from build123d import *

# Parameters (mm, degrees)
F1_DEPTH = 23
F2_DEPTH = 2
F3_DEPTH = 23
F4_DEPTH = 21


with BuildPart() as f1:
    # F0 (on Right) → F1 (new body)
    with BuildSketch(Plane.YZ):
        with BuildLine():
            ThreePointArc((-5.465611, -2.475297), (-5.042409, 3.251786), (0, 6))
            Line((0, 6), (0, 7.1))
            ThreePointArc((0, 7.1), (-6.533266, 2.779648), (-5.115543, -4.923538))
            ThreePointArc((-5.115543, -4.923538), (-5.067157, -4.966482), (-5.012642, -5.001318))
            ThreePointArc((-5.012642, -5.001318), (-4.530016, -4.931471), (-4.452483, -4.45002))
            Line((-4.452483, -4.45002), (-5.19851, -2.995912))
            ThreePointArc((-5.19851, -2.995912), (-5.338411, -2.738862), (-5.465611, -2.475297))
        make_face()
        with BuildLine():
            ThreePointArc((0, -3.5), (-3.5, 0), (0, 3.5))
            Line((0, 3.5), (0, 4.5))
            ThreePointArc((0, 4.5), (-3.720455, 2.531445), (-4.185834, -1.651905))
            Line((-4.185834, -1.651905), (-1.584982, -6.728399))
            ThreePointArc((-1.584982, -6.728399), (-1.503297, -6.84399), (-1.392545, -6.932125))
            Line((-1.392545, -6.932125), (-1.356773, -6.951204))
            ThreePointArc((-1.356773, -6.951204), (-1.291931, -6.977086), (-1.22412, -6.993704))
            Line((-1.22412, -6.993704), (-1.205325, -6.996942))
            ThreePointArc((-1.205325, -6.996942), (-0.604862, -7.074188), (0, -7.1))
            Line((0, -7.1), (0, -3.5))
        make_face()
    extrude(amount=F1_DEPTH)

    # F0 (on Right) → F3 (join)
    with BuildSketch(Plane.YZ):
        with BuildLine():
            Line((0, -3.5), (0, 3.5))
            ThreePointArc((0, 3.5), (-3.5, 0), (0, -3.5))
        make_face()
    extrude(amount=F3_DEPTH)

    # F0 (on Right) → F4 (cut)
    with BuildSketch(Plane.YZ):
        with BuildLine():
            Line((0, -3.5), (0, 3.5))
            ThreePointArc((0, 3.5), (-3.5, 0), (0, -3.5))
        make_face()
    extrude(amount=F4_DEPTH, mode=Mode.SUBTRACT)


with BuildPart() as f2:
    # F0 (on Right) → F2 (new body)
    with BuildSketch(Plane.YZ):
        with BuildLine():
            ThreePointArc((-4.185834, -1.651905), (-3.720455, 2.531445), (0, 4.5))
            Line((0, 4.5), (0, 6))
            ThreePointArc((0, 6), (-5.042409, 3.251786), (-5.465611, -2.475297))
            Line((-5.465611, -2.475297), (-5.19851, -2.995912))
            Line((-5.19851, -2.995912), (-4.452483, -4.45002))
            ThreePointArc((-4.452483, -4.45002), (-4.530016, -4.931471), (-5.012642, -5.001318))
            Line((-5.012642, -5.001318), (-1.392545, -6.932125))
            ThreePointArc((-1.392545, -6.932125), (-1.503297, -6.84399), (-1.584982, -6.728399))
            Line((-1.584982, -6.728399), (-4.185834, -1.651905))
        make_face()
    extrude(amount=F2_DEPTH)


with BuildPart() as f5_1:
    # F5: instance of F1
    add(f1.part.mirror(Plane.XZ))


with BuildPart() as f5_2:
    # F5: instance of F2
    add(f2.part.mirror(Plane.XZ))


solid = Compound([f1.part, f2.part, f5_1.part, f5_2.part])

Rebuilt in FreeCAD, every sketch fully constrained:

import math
import FreeCAD as App
import Part
import Sketcher
from FreeCAD import Vector
Q = App.Units.Quantity

doc = App.newDocument("Part")
body = doc.addObject("PartDesign::Body", "Body")
body.AllowCompound = True

# Sketch on YZ plane
sketch1 = body.newObject("Sketcher::SketchObject", "Sketch")
sketch1.AttachmentSupport = (doc.getObject("YZ_Plane"), [""])
sketch1.MapMode = "FlatFace"
sketch1.addGeometry([
    Part.ArcOfCircle(Part.Circle(Vector(0, 0, 0), Vector(0, 0, 1), 6), math.radians(89.999998), math.radians(204.365094)),  # 0
    Part.LineSegment(Vector(0, 6, 0), Vector(0, 7.1, 0)),  # 1
    Part.ArcOfCircle(Part.Circle(Vector(-0.000001, 0, 0), Vector(0, 0, 1), 7.1), math.radians(89.999995), math.radians(223.904311)),  # 2
    Part.ArcOfCircle(Part.Circle(Vector(-4.818848, -4.637976, 0), Vector(0, 0, 1), 0.411793), math.radians(-136.095357), math.radians(-118.073881)),  # 3
    Part.ArcOfCircle(Part.Circle(Vector(-4.818857, -4.637988, 0), Vector(0, 0, 1), 0.411779), math.radians(-118.07356), math.radians(27.160008)),  # 4
    Part.LineSegment(Vector(-4.452483, -4.45002, 0), Vector(-5.19851, -2.995912, 0)),  # 5
    Part.ArcOfCircle(Part.Circle(Vector(-0.000012, -0.000003, 0), Vector(0, 0, 1), 5.999988), math.radians(-155.634882), math.radians(-150.045027)),  # 6
    Part.ArcOfCircle(Part.Circle(Vector(0, 0, 0), Vector(0, 0, 1), 3.5), math.radians(90), math.radians(270)),  # 7
    Part.LineSegment(Vector(0, 3.5, 0), Vector(0, 4.5, 0)),  # 8
    Part.ArcOfCircle(Part.Circle(Vector(0, 0, 0), Vector(0, 0, 1), 4.5), math.radians(89.999999), math.radians(201.536268)),  # 9
    Part.LineSegment(Vector(-4.185834, -1.651905, 0), Vector(-1.584982, -6.728399, 0)),  # 10
    Part.ArcOfCircle(Part.Circle(Vector(-1.139057, -6.499934, 0), Vector(0, 0, 1), 0.501044), math.radians(-152.872128), math.radians(-120.392372)),  # 11
    Part.LineSegment(Vector(-1.392545, -6.932125, 0), Vector(-1.356773, -6.951204, 0)),  # 12
    Part.ArcOfCircle(Part.Circle(Vector(-1.139052, -6.499913, 0), Vector(0, 0, 1), 0.501065), math.radians(-115.754589), math.radians(-99.774745)),  # 13
    Part.LineSegment(Vector(-1.22412, -6.993704, 0), Vector(-1.205325, -6.996942, 0)),  # 14
    Part.ArcOfCircle(Part.Circle(Vector(0.000012, 0.000173, 0), Vector(0, 0, 1), 7.100173), math.radians(-99.773964), math.radians(-90.0001)),  # 15
    Part.LineSegment(Vector(0, -7.1, 0), Vector(0, -3.5, 0)),  # 16
], False)
sketch1.addConstraint([
    Sketcher.Constraint("Coincident", 0, 1, 1, 1),
    Sketcher.Constraint("Coincident", 1, 2, 2, 1),
    Sketcher.Constraint("Coincident", 2, 2, 3, 1),
    Sketcher.Constraint("Coincident", 3, 2, 4, 1),
    Sketcher.Constraint("Coincident", 4, 2, 5, 1),
    Sketcher.Constraint("Coincident", 5, 2, 6, 2),
    Sketcher.Constraint("Coincident", 6, 1, 0, 2),
    Sketcher.Constraint("Coincident", 7, 1, 8, 1),
    Sketcher.Constraint("Coincident", 8, 2, 9, 1),
    Sketcher.Constraint("Coincident", 9, 2, 10, 1),
    Sketcher.Constraint("Coincident", 10, 2, 11, 1),
    Sketcher.Constraint("Coincident", 11, 2, 12, 1),
    Sketcher.Constraint("Coincident", 12, 2, 13, 1),
    Sketcher.Constraint("Coincident", 13, 2, 14, 1),
    Sketcher.Constraint("Coincident", 14, 2, 15, 1),
    Sketcher.Constraint("Coincident", 15, 2, 16, 1),
    Sketcher.Constraint("Coincident", 16, 2, 7, 2),
    Sketcher.Constraint("Vertical", 1),
    Sketcher.Constraint("Vertical", 8),
    Sketcher.Constraint("Vertical", 16),
    Sketcher.Constraint("Coincident", 0, 3, -1, 1),
    Sketcher.Constraint("Coincident", 2, 3, -1, 1),
    Sketcher.Constraint("Coincident", 7, 3, -1, 1),
    Sketcher.Constraint("Coincident", 9, 3, -1, 1),
    Sketcher.Constraint("PointOnObject", 0, 1, -2),
    Sketcher.Constraint("PointOnObject", 7, 1, -2),
    Sketcher.Constraint("PointOnObject", 15, 2, -2),
    Sketcher.Constraint("Radius", 0, Q("6 mm")),
    Sketcher.Constraint("Radius", 2, Q("7.1 mm")),
    Sketcher.Constraint("Radius", 7, Q("3.5 mm")),
    Sketcher.Constraint("Radius", 9, Q("4.5 mm")),
    Sketcher.Constraint("DistanceY", 16, 1, 16, 2, Q("3.6 mm")),
    Sketcher.Constraint("Radius", 4, Q("0.411779 mm")),
    Sketcher.Constraint("Radius", 3, Q("0.411793 mm")),
    Sketcher.Constraint("Radius", 6, Q("5.999988 mm")),
    Sketcher.Constraint("Radius", 11, Q("0.501044 mm")),
    Sketcher.Constraint("Radius", 13, Q("0.501065 mm")),
    Sketcher.Constraint("Radius", 15, Q("7.100173 mm")),
    Sketcher.Constraint("DistanceY", 10, 2, -1, 1, Q("6.728399 mm")),
    Sketcher.Constraint("DistanceX", 4, 3, 11, 3, Q("3.6798 mm")),
    Sketcher.Constraint("DistanceX", 2, 2, 3, 2, Q("0.102901 mm")),
    Sketcher.Constraint("DistanceX", 6, 1, 5, 2, Q("0.267101 mm")),
    Sketcher.Constraint("DistanceX", 4, 2, 10, 2, Q("2.867501 mm")),
    Sketcher.Constraint("DistanceY", 13, 2, 12, 2, Q("0.0425 mm")),
    Sketcher.Constraint("Distance", 12, Q("0.040542 mm")),
    Sketcher.Constraint("Distance", 14, Q("0.019072 mm")),
    Sketcher.Constraint("DistanceX", 3, 3, -1, 1, Q("4.818848 mm")),
    Sketcher.Constraint("DistanceX", 13, 3, -1, 1, Q("1.139052 mm")),
    Sketcher.Constraint("DistanceX", 3, 2, -1, 1, Q("5.012642 mm")),
    Sketcher.Constraint("DistanceY", 4, 2, -1, 1, Q("4.45002 mm")),
    Sketcher.Constraint("DistanceX", 5, 2, -1, 1, Q("5.19851 mm")),
    Sketcher.Constraint("DistanceX", 10, 2, -1, 1, Q("1.584982 mm")),
    Sketcher.Constraint("DistanceX", 13, 2, -1, 1, Q("1.22412 mm")),
    Sketcher.Constraint("DistanceY", 14, 2, -1, 1, Q("6.996942 mm")),
    Sketcher.Constraint("DistanceY", 11, 3, 6, 3, Q("6.499932 mm")),
    Sketcher.Constraint("DistanceY", 13, 3, 6, 3, Q("6.499911 mm")),
    Sketcher.Constraint("DistanceY", 6, 1, 9, 2, Q("0.823392 mm")),
])
pad1 = body.newObject("PartDesign::Pad", "Pad")
pad1.Profile = sketch1
pad1.Length = 23

# Sketch on YZ plane
sketch2 = body.newObject("Sketcher::SketchObject", "Sketch001")
sketch2.AttachmentSupport = (doc.getObject("YZ_Plane"), [""])
sketch2.MapMode = "FlatFace"
sketch2.addGeometry([
    Part.LineSegment(Vector(0, -3.5, 0), Vector(0, 3.5, 0)),
    Part.ArcOfCircle(Part.Circle(Vector(0, 0, 0), Vector(0, 0, 1), 3.5), math.radians(90), math.radians(270)),
], False)
sketch2.addConstraint([
    Sketcher.Constraint("Coincident", 0, 1, 1, 2),
    Sketcher.Constraint("Coincident", 1, 1, 0, 2),
    Sketcher.Constraint("Vertical", 0),
    Sketcher.Constraint("Coincident", 1, 3, -1, 1),
    Sketcher.Constraint("PointOnObject", 0, 1, -2),
    Sketcher.Constraint("Radius", 1, Q("3.5 mm")),
])
pad2 = body.newObject("PartDesign::Pad", "Pad001")
pad2.Profile = sketch2
pad2.Length = 23

# Sketch on YZ plane
sketch3 = body.newObject("Sketcher::SketchObject", "Sketch002")
sketch3.AttachmentSupport = (doc.getObject("YZ_Plane"), [""])
sketch3.MapMode = "FlatFace"
sketch3.addGeometry([
    Part.LineSegment(Vector(0, -3.5, 0), Vector(0, 3.5, 0)),
    Part.ArcOfCircle(Part.Circle(Vector(0, 0, 0), Vector(0, 0, 1), 3.5), math.radians(90), math.radians(270)),
], False)
sketch3.addConstraint([
    Sketcher.Constraint("Coincident", 0, 1, 1, 2),
    Sketcher.Constraint("Coincident", 1, 1, 0, 2),
    Sketcher.Constraint("Vertical", 0),
    Sketcher.Constraint("Coincident", 1, 3, -1, 1),
    Sketcher.Constraint("PointOnObject", 0, 1, -2),
    Sketcher.Constraint("Radius", 1, Q("3.5 mm")),
])
pocket1 = body.newObject("PartDesign::Pocket", "Pocket")
pocket1.Profile = sketch3
pocket1.Length = 21
pocket1.Reversed = True
body2 = doc.addObject("PartDesign::Body", "Body001")

# Sketch on YZ plane
sketch4 = body2.newObject("Sketcher::SketchObject", "Sketch003")
sketch4.AttachmentSupport = (doc.getObject("YZ_Plane001"), [""])
sketch4.MapMode = "FlatFace"
sketch4.addGeometry([
    Part.ArcOfCircle(Part.Circle(Vector(0, 0, 0), Vector(0, 0, 1), 4.5), math.radians(89.999999), math.radians(201.536268)),  # 0
    Part.LineSegment(Vector(0, 4.5, 0), Vector(0, 6, 0)),  # 1
    Part.ArcOfCircle(Part.Circle(Vector(0, 0, 0), Vector(0, 0, 1), 6), math.radians(89.999998), math.radians(204.365094)),  # 2
    Part.LineSegment(Vector(-5.465611, -2.475297, 0), Vector(-5.19851, -2.995912, 0)),  # 3
    Part.LineSegment(Vector(-5.19851, -2.995912, 0), Vector(-4.452483, -4.45002, 0)),  # 4
    Part.ArcOfCircle(Part.Circle(Vector(-4.818857, -4.637988, 0), Vector(0, 0, 1), 0.411779), math.radians(-118.07356), math.radians(27.160008)),  # 5
    Part.LineSegment(Vector(-5.012642, -5.001318, 0), Vector(-1.392545, -6.932125, 0)),  # 6
    Part.ArcOfCircle(Part.Circle(Vector(-1.139057, -6.499934, 0), Vector(0, 0, 1), 0.501044), math.radians(-152.872128), math.radians(-120.392372)),  # 7
    Part.LineSegment(Vector(-1.584982, -6.728399, 0), Vector(-4.185834, -1.651905, 0)),  # 8
], False)
sketch4.addConstraint([
    Sketcher.Constraint("Coincident", 0, 1, 1, 1),
    Sketcher.Constraint("Coincident", 1, 2, 2, 1),
    Sketcher.Constraint("Coincident", 2, 2, 3, 1),
    Sketcher.Constraint("Coincident", 3, 2, 4, 1),
    Sketcher.Constraint("Tangent", 4, 2, 5, 2),
    Sketcher.Constraint("Tangent", 5, 1, 6, 1),
    Sketcher.Constraint("Coincident", 6, 2, 7, 2),
    Sketcher.Constraint("Coincident", 7, 1, 8, 1),
    Sketcher.Constraint("Coincident", 8, 2, 0, 2),
    Sketcher.Constraint("Vertical", 1),
    Sketcher.Constraint("Coincident", 0, 3, -1, 1),
    Sketcher.Constraint("Coincident", 2, 3, -1, 1),
    Sketcher.Constraint("PointOnObject", 0, 1, -2),
    Sketcher.Constraint("Parallel", 3, 4),
    Sketcher.Constraint("Radius", 2, Q("6 mm")),
    Sketcher.Constraint("Radius", 0, Q("4.5 mm")),
    Sketcher.Constraint("Angle", 4, Q("-62.840005 deg")),
    Sketcher.Constraint("Radius", 5, Q("0.411779 mm")),
    Sketcher.Constraint("Radius", 7, Q("0.501044 mm")),
    Sketcher.Constraint("DistanceY", 7, 1, -1, 1, Q("6.728399 mm")),
    Sketcher.Constraint("DistanceX", 5, 3, 7, 3, Q("3.6798 mm")),
    Sketcher.Constraint("DistanceX", 2, 2, 3, 2, Q("0.267101 mm")),
    Sketcher.Constraint("DistanceY", 5, 1, 4, 2, Q("0.551298 mm")),
    Sketcher.Constraint("DistanceX", 4, 2, 7, 1, Q("2.867501 mm")),
    Sketcher.Constraint("Distance", 6, Q("4.102818 mm")),
    Sketcher.Constraint("DistanceX", 2, 2, -1, 1, Q("5.465611 mm")),
    Sketcher.Constraint("DistanceY", 2, 2, 8, 2, Q("0.823392 mm")),
])
pad3 = body2.newObject("PartDesign::Pad", "Pad002")
pad3.Profile = sketch4
pad3.Length = 2
body3 = doc.addObject("PartDesign::Body", "Body002")
body3.AllowCompound = True
doc.recompute()

mirroring = doc.addObject("Part::Mirroring", "Mirroring")
mirroring.Source = body
mirroring.Base = Vector(0, 0, 0)
mirroring.Normal = Vector(0, -1, 0)
body3.BaseFeature = mirroring
doc.recompute()
body4 = doc.addObject("PartDesign::Body", "Body003")
doc.recompute()

mirroring2 = doc.addObject("Part::Mirroring", "Mirroring001")
mirroring2.Source = body2
mirroring2.Base = Vector(0, 0, 0)
mirroring2.Normal = Vector(0, -1, 0)
body4.BaseFeature = mirroring2
doc.recompute()
mirroring.Visibility = False
mirroring2.Visibility = False

doc.recompute()
